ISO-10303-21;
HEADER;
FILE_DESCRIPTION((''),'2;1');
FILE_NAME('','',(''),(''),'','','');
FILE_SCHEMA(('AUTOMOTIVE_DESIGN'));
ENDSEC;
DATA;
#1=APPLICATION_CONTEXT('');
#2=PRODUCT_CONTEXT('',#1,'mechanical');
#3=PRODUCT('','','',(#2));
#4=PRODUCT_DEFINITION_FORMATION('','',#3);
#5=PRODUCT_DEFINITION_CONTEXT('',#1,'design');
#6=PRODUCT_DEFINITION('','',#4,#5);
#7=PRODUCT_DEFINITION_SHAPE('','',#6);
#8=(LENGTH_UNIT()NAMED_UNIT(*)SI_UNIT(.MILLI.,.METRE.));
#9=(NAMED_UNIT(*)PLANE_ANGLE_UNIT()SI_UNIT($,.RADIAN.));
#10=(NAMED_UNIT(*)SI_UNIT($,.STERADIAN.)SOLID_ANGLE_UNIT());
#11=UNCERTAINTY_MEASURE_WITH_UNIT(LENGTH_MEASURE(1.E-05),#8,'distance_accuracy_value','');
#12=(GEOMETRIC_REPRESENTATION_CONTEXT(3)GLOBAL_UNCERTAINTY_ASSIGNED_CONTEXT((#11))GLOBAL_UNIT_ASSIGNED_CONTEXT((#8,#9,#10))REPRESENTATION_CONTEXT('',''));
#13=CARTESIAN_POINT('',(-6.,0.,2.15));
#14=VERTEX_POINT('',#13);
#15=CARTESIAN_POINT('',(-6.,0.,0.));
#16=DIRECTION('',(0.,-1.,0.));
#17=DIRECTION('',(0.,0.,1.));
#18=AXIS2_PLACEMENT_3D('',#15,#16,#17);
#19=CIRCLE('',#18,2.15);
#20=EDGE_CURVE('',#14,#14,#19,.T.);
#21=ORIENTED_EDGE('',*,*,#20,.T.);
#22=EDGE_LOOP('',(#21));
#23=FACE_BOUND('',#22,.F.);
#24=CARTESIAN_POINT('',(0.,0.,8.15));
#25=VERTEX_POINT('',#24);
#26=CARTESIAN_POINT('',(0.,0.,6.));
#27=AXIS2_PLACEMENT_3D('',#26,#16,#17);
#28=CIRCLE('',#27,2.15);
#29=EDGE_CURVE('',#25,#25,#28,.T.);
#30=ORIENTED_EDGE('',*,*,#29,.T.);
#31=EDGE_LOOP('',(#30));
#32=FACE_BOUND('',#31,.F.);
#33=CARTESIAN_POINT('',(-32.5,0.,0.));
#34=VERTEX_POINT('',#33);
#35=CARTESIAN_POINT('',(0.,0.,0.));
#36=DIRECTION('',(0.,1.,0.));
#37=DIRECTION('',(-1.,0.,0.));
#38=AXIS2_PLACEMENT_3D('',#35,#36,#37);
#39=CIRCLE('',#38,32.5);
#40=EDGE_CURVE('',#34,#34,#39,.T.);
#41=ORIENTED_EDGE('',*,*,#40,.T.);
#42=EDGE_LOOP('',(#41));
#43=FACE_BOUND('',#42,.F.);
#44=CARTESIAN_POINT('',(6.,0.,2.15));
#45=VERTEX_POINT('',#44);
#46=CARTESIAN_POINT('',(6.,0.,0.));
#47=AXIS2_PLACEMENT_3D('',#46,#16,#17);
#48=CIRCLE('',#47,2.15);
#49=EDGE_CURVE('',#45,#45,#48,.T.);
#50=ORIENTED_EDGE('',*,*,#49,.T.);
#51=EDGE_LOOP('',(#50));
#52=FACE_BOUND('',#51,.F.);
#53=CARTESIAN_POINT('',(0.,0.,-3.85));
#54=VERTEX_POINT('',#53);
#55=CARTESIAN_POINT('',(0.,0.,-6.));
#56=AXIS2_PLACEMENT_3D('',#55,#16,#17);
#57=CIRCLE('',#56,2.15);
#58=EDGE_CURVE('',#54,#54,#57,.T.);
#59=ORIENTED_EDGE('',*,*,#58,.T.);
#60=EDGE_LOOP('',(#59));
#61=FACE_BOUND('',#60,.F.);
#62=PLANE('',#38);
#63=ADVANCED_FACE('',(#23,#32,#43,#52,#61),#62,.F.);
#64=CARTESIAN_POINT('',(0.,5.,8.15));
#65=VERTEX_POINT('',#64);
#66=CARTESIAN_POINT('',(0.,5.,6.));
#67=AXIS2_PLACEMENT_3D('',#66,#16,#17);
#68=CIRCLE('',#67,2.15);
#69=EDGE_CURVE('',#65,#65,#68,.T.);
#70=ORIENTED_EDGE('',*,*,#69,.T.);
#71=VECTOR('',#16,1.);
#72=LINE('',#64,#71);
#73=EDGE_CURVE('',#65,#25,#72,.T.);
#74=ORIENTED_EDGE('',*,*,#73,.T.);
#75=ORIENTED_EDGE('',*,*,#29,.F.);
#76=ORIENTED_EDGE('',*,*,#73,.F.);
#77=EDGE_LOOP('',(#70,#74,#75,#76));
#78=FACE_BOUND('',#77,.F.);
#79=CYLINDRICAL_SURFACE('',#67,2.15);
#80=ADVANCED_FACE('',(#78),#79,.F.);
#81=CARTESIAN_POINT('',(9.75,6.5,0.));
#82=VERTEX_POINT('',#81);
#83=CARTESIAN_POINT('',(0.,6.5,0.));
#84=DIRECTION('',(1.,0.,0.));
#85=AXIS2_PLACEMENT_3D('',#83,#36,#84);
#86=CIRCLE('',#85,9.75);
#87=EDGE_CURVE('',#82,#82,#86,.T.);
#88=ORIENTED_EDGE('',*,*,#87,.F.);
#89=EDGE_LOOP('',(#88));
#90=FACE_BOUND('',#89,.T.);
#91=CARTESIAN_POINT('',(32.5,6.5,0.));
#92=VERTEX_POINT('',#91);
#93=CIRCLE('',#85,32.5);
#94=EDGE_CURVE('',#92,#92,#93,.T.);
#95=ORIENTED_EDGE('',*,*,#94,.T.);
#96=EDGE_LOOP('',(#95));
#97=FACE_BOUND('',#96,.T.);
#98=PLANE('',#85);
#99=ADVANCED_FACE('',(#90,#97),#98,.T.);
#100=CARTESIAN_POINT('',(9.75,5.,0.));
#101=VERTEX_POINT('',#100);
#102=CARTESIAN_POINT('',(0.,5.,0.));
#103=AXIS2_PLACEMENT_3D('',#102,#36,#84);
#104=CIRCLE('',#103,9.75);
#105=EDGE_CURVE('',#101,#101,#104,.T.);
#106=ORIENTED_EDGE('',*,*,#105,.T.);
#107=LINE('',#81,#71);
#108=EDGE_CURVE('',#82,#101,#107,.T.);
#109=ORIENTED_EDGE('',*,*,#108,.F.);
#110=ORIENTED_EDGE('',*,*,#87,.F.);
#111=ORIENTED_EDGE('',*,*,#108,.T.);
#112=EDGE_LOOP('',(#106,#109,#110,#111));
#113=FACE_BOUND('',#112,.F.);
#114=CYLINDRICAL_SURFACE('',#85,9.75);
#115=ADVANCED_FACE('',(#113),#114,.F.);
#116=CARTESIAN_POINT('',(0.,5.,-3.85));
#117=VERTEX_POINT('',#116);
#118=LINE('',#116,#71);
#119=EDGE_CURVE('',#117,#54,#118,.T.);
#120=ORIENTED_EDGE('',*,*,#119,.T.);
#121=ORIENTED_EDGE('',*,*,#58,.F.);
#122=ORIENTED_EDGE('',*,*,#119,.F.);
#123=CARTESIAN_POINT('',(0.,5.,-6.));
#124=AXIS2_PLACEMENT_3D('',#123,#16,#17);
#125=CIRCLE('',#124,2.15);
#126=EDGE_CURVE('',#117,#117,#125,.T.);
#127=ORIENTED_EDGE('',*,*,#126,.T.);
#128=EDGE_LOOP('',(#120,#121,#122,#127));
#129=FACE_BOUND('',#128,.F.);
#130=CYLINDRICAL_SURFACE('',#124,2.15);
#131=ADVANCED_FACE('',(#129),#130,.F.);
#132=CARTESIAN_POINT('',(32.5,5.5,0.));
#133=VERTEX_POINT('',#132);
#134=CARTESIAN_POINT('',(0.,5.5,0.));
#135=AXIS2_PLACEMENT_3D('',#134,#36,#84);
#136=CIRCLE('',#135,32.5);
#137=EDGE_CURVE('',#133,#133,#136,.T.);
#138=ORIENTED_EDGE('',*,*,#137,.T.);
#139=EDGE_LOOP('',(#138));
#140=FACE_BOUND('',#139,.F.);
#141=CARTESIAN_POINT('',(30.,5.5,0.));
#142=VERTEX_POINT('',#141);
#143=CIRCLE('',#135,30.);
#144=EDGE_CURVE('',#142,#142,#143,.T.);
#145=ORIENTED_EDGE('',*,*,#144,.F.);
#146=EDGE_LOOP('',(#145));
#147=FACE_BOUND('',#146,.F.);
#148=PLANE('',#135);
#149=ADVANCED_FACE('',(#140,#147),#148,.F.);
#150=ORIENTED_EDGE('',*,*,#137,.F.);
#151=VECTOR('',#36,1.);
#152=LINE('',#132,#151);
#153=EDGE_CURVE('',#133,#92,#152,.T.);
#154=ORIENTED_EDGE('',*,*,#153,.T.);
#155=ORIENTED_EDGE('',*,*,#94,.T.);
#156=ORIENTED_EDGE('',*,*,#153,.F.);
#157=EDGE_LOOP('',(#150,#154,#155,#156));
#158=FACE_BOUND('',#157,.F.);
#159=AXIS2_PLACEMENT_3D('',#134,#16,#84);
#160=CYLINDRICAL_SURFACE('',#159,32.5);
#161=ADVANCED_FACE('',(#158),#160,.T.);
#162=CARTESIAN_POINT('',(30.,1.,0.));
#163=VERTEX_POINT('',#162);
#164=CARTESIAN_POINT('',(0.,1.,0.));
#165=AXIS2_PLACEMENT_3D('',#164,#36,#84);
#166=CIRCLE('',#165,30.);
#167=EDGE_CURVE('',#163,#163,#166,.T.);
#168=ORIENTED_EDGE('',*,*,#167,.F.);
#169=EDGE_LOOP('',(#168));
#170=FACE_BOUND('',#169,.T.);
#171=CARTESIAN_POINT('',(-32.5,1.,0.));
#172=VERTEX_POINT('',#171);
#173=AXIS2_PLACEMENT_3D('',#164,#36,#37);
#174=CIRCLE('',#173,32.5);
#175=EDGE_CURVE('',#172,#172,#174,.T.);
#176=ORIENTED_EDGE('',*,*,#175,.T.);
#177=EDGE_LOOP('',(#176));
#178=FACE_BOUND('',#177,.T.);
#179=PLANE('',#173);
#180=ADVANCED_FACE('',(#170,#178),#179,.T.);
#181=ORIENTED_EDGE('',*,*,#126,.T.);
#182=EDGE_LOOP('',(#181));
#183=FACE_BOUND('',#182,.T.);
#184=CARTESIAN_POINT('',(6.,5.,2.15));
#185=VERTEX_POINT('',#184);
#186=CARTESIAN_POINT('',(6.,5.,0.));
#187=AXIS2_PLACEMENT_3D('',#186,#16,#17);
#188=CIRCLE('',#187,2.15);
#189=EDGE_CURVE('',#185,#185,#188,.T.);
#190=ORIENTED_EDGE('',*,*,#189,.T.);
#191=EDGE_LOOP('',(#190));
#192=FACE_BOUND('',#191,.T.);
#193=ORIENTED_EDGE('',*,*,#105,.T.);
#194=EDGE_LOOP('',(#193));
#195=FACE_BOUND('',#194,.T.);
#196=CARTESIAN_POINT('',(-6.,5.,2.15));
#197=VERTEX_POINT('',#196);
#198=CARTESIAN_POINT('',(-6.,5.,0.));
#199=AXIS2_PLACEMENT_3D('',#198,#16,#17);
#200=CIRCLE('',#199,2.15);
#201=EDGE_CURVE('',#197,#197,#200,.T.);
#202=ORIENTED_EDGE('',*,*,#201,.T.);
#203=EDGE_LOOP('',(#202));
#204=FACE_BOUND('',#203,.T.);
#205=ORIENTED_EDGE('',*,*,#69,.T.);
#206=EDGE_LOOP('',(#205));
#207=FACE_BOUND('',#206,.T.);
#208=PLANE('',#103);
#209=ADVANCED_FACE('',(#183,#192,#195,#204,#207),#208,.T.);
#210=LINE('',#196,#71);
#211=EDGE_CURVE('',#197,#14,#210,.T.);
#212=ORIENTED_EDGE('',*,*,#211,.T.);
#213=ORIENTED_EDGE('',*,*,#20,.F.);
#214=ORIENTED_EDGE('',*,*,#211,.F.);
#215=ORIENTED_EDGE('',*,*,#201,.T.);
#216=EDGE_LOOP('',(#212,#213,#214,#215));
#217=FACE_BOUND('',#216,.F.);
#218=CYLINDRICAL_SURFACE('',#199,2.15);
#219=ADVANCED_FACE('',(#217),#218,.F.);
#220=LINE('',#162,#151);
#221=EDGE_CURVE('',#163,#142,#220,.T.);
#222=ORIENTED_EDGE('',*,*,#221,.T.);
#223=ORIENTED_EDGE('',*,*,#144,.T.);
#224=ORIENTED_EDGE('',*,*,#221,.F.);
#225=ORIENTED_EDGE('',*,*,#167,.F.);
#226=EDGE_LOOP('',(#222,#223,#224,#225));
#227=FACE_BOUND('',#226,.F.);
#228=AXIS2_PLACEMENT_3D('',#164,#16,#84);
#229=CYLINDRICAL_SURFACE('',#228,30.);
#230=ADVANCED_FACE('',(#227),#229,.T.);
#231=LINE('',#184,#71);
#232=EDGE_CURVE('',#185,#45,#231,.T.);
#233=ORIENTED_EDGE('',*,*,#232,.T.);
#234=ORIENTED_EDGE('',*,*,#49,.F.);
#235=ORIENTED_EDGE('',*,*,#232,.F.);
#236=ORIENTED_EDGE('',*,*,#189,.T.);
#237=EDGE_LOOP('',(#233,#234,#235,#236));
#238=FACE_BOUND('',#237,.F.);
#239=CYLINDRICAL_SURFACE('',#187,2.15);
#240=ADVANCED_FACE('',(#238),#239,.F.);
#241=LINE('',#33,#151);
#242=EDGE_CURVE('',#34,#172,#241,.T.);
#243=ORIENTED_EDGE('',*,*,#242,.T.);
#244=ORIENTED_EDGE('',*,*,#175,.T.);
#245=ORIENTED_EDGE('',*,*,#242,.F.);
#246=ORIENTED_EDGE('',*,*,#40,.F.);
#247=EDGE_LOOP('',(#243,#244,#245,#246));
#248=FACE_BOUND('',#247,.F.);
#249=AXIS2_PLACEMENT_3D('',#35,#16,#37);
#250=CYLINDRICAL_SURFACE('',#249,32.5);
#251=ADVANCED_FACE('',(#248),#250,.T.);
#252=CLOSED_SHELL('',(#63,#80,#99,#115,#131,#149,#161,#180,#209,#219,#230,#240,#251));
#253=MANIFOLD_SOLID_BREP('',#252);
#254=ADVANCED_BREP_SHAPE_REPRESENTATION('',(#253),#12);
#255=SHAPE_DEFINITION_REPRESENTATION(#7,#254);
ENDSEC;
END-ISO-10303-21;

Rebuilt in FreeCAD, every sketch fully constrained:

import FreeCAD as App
import Part
import Sketcher
Q = App.Units.Quantity

doc = App.newDocument("Part")
body = doc.addObject("PartDesign::Body", "Body")

sketch1 = body.newObject("Sketcher::SketchObject", "Sketch")
sketch1.AttachmentSupport = (doc.getObject("XZ_Plane"), [""])
sketch1.MapMode = "FlatFace"
sketch1.addGeometry(Part.Circle(App.Vector(0, 0, 0), App.Vector(0, 0, 1), 32), False)
sketch1.addConstraint([
    Sketcher.Constraint("Coincident", 0, 3, -1, 1),
    Sketcher.Constraint("Diameter", 0, Q("65 mm")),
])
pad1 = body.newObject("PartDesign::Pad", "Pad")
pad1.Profile = sketch1
pad1.Length = 1
pad1.Reversed = True

sketch2 = body.newObject("Sketcher::SketchObject", "Sketch001")
sketch2.AttachmentSupport = (doc.getObject("XZ_Plane"), [""])
sketch2.MapMode = "FlatFace"
sketch2.AttachmentOffset = App.Placement(App.Vector(0, 0, -1), App.Rotation())
sketch2.addGeometry(Part.Circle(App.Vector(0, 0, 0), App.Vector(0, 0, 1), 30), False)
sketch2.addConstraint([
    Sketcher.Constraint("Coincident", 0, 3, -1, 1),
    Sketcher.Constraint("Diameter", 0, Q("60 mm")),
])
pad2 = body.newObject("PartDesign::Pad", "Pad001")
pad2.Profile = sketch2
pad2.Length = 4.5
pad2.Reversed = True

sketch3 = body.newObject("Sketcher::SketchObject", "Sketch002")
sketch3.AttachmentSupport = (doc.getObject("XZ_Plane"), [""])
sketch3.MapMode = "FlatFace"
sketch3.AttachmentOffset = App.Placement(App.Vector(0, 0, -5.5), App.Rotation())
sketch3.addGeometry(Part.Circle(App.Vector(0, 0, 0), App.Vector(0, 0, 1), 32), False)
sketch3.addConstraint([
    Sketcher.Constraint("Coincident", 0, 3, -1, 1),
    Sketcher.Constraint("Diameter", 0, Q("65 mm")),
])
pad3 = body.newObject("PartDesign::Pad", "Pad002")
pad3.Profile = sketch3
pad3.Length = 1
pad3.Reversed = True

sketch4 = body.newObject("Sketcher::SketchObject", "Sketch003")
sketch4.AttachmentSupport = (doc.getObject("XZ_Plane"), [""])
sketch4.MapMode = "FlatFace"
sketch4.AttachmentOffset = App.Placement(App.Vector(0, 0, -6.5), App.Rotation())
sketch4.addGeometry(Part.Circle(App.Vector(0, 0, 0), App.Vector(0, 0, 1), 10), False)
sketch4.addConstraint([
    Sketcher.Constraint("Coincident", 0, 3, -1, 1),
    Sketcher.Constraint("Diameter", 0, Q("19.5 mm")),
])
pocket1 = body.newObject("PartDesign::Pocket", "Pocket")
pocket1.Profile = sketch4
pocket1.Length = 1.5
pocket1.Reversed = True

sketch5 = body.newObject("Sketcher::SketchObject", "Sketch004")
sketch5.AttachmentSupport = (doc.getObject("XZ_Plane"), [""])
sketch5.MapMode = "FlatFace"
sketch5.AttachmentOffset = App.Placement(App.Vector(0, 0, -5), App.Rotation())
sketch5.addGeometry([
    Part.Circle(App.Vector(0, -6, 0), App.Vector(0, 0, 1), 2.1),
    Part.Circle(App.Vector(6, 0, 0), App.Vector(0, 0, 1), 2.1),
    Part.Circle(App.Vector(0, 6, 0), App.Vector(0, 0, 1), 2.1),
    Part.Circle(App.Vector(-6, 0, 0), App.Vector(0, 0, 1), 2.1),
], False)
sketch5.addConstraint([
    Sketcher.Constraint("Equal", 0, 1),
    Sketcher.Constraint("Equal", 1, 2),
    Sketcher.Constraint("Equal", 2, 3),
    Sketcher.Constraint("Symmetric", 0, 3, 2, 3, -1, 1),
    Sketcher.Constraint("Symmetric", 1, 3, 3, 3, -1, 1),
    Sketcher.Constraint("PointOnObject", 0, 3, -2),
    Sketcher.Constraint("PointOnObject", 1, 3, -1),
    Sketcher.Constraint("Diameter", 0, Q("4.3 mm")),
    Sketcher.Constraint("DistanceY", 0, 3, -1, 1, Q("6 mm")),
    Sketcher.Constraint("DistanceX", -1, 1, 1, 3, Q("6 mm")),
])
doc.recompute()
hole = body.newObject("PartDesign::Hole", "Hole")
hole.Profile = sketch5
hole.ThreadType = "None"
hole.Diameter = 4.3
hole.DepthType = "ThroughAll"
hole.Reversed = True

doc.recompute()
